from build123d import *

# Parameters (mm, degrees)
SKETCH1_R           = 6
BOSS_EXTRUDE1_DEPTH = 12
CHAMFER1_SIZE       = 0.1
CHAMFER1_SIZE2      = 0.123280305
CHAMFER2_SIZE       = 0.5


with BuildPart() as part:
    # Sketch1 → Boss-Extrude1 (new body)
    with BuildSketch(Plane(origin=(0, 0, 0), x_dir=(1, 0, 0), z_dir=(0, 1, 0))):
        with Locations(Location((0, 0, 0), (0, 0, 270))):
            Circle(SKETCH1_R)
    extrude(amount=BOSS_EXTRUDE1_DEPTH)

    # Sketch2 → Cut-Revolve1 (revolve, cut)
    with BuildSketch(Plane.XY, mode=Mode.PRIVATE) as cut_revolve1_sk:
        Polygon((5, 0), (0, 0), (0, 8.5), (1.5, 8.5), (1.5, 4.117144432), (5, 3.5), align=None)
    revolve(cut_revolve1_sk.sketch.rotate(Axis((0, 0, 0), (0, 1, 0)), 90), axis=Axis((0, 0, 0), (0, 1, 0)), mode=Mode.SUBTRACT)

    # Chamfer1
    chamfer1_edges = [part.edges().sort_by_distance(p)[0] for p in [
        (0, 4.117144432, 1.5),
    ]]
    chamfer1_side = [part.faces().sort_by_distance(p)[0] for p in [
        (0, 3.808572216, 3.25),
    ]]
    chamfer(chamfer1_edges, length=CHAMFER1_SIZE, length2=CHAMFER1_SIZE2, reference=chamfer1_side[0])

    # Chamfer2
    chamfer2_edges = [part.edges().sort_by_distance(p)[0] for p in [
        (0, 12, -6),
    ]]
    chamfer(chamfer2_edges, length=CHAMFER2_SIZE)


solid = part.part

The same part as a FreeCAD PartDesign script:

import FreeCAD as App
import Part
import Sketcher
from FreeCAD import Vector
Q = App.Units.Quantity


def edges_at(feature, points):
    """Names of the edges that pass closest to the given points."""
    edges = feature.Shape.Edges
    near = lambda p: min(range(len(edges)), key=lambda i: edges[i].distToShape(Part.Vertex(*p))[0])
    return sorted({f"Edge{near(p) + 1}" for p in points})

doc = App.newDocument("Part")
body = doc.addObject("PartDesign::Body", "Body")

# Sketch on XZ plane
sketch1 = body.newObject("Sketcher::SketchObject", "Sketch")
sketch1.AttachmentSupport = (doc.getObject("XZ_Plane"), [""])
sketch1.MapMode = "FlatFace"
sketch1.addGeometry(Part.Circle(Vector(0, 0, 0), Vector(0, 0, 1), 6), False)
sketch1.addConstraint(Sketcher.Constraint("Coincident", 0, 3, -1, 1))
sketch1.addConstraint(Sketcher.Constraint("Diameter", 0, 12.0))
pad1 = body.newObject("PartDesign::Pad", "Pad")
pad1.Profile = sketch1
pad1.Length = 12
pad1.Reversed = True

# Sketch on XY plane
sketch2 = body.newObject("Sketcher::SketchObject", "Sketch001")
sketch2.AttachmentSupport = (doc.getObject("XY_Plane"), [""])
sketch2.MapMode = "FlatFace"
sketch2.addGeometry(Part.LineSegment(Vector(0, 0, 0), Vector(5, 0, 0)), False)
sketch2.addGeometry(Part.LineSegment(Vector(5, 0, 0), Vector(5, 3.5, 0)), False)
sketch2.addGeometry(Part.LineSegment(Vector(5, 3.5, 0), Vector(1.5, 4.117144, 0)), False)
sketch2.addGeometry(Part.LineSegment(Vector(1.5, 4.117144, 0), Vector(1.5, 8.5, 0)), False)
sketch2.addGeometry(Part.LineSegment(Vector(1.5, 8.5, 0), Vector(0, 8.5, 0)), False)
sketch2.addGeometry(Part.LineSegment(Vector(0, 8.5, 0), Vector(0, 0, 0)), False)
sketch2.addConstraint(Sketcher.Constraint("Coincident", 0, 2, 1, 1))
sketch2.addConstraint(Sketcher.Constraint("Coincident", 1, 2, 2, 1))
sketch2.addConstraint(Sketcher.Constraint("Coincident", 2, 2, 3, 1))
sketch2.addConstraint(Sketcher.Constraint("Coincident", 3, 2, 4, 1))
sketch2.addConstraint(Sketcher.Constraint("Coincident", 4, 2, 5, 1))
sketch2.addConstraint(Sketcher.Constraint("Coincident", 5, 2, 0, 1))
sketch2.addConstraint(Sketcher.Constraint("Horizontal", 0))
sketch2.addConstraint(Sketcher.Constraint("Vertical", 1))
sketch2.addConstraint(Sketcher.Constraint("Vertical", 3))
sketch2.addConstraint(Sketcher.Constraint("Horizontal", 4))
sketch2.addConstraint(Sketcher.Constraint("Vertical", 5))
sketch2.addConstraint(Sketcher.Constraint("Coincident", 5, 2, -1, 1))
sketch2.addConstraint(Sketcher.Constraint("DistanceX", 0, 1, 0, 2, 5.0))
sketch2.addConstraint(Sketcher.Constraint("Angle", 2, Q("170 deg")))
sketch2.addConstraint(Sketcher.Constraint("DistanceX", 4, 2, 4, 1, 1.5))
sketch2.addConstraint(Sketcher.Constraint("DistanceY", 1, 1, 1, 2, 3.5))
sketch2.addConstraint(Sketcher.Constraint("DistanceY", 5, 2, 5, 1, 8.5))
groove = body.newObject("PartDesign::Groove", "Groove")
groove.Profile = sketch2
groove.ReferenceAxis = (sketch2, ["V_Axis"])
groove.Angle = 360
doc.recompute()

chamfer = body.newObject("PartDesign::Chamfer", "Chamfer")
chamfer.Base = (groove, edges_at(groove, [(0, 4.117, 1.5)]))
chamfer.ChamferType = "Two distances"
chamfer.Size = 0.1
chamfer.Size2 = 0.12328
doc.recompute()

chamfer2 = body.newObject("PartDesign::Chamfer", "Chamfer001")
chamfer2.Base = (chamfer, edges_at(chamfer, [(0, 12, -6)]))
chamfer2.Size = 0.5

doc.recompute()
